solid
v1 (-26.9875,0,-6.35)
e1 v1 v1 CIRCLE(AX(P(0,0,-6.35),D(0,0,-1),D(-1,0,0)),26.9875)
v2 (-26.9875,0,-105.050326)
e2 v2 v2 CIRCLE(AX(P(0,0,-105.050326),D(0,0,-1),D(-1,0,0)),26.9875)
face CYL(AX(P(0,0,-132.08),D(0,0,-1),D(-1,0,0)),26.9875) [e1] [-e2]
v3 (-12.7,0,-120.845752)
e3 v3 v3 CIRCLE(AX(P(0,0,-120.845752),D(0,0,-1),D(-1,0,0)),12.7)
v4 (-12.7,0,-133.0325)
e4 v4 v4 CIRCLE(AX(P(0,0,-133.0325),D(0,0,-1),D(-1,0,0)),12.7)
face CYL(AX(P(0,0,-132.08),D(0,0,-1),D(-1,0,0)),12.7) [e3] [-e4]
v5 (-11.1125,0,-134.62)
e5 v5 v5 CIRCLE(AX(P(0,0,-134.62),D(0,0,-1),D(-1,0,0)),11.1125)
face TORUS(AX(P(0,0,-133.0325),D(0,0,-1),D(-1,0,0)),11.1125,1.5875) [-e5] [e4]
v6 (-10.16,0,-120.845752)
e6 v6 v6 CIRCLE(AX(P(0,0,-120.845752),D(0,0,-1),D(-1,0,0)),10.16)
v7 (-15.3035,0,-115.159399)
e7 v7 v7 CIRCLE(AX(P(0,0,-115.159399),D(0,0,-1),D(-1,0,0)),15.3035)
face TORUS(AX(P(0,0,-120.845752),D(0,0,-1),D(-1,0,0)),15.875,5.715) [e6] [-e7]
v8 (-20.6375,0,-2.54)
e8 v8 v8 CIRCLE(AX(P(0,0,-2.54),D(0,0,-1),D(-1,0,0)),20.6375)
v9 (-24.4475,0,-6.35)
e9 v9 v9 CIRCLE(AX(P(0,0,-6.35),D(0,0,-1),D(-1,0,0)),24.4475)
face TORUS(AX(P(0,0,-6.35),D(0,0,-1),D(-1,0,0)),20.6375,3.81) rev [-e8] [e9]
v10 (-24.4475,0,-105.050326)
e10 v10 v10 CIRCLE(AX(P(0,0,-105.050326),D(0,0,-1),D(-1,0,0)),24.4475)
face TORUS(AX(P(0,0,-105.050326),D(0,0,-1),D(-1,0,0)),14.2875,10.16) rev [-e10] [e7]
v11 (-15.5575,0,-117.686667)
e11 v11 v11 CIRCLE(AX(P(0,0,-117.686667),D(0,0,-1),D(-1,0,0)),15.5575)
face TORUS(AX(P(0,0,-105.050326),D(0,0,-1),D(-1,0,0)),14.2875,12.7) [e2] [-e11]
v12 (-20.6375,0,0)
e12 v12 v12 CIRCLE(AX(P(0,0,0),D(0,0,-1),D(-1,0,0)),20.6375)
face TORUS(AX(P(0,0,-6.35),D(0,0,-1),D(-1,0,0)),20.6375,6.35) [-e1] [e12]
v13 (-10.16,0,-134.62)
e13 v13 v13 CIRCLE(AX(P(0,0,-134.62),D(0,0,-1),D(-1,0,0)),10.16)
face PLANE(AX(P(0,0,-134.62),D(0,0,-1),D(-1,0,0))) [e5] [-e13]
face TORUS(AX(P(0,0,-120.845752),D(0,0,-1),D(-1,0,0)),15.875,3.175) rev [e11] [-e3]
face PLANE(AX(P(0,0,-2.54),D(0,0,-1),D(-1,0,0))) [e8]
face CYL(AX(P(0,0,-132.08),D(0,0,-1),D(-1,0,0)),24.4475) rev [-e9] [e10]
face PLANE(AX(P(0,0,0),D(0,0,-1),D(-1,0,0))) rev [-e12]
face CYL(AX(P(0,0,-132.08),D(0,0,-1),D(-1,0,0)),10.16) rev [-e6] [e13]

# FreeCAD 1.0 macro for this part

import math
import FreeCAD as App
import Part
import Sketcher

V = App.Vector
Q = App.Units.Quantity

doc = App.newDocument("Part")
body = doc.addObject("PartDesign::Body", "Body")

sketch1 = body.newObject("Sketcher::SketchObject", "Sketch")
sketch1.AttachmentSupport = (doc.getObject("XZ_Plane"), [""])
sketch1.MapMode = "FlatFace"
sketch1.addGeometry(Part.LineSegment(V(12.7, -120.845752, 0), V(12.7, -133.0325, 0)), False)
sketch1.addGeometry(Part.ArcOfCircle(Part.Circle(V(11.1125, -133.0325, 0), V(0, 0, 1), 1.5875), math.radians(-90), math.radians(0)), False)
sketch1.addGeometry(Part.LineSegment(V(11.1125, -134.62, 0), V(10.16, -134.62, 0)), False)
sketch1.addGeometry(Part.LineSegment(V(10.16, -134.62, 0), V(10.16, -120.845752, 0)), False)
sketch1.addGeometry(Part.ArcOfCircle(Part.Circle(V(15.875, -120.845752, 0), V(0, 0, 1), 5.715), math.radians(95.73917), math.radians(180)), False)
sketch1.addGeometry(Part.ArcOfCircle(Part.Circle(V(14.2875, -105.050326, 0), V(0, 0, 1), 10.16), math.radians(-84.26083), math.radians(0)), False)
sketch1.addGeometry(Part.LineSegment(V(24.4475, -105.050326, 0), V(24.4475, -6.35, 0)), False)
sketch1.addGeometry(Part.ArcOfCircle(Part.Circle(V(20.6375, -6.35, 0), V(0, 0, 1), 3.81), math.radians(0), math.radians(90)), False)
sketch1.addGeometry(Part.LineSegment(V(20.6375, -2.54, 0), V(0, -2.54, 0)), False)
sketch1.addGeometry(Part.LineSegment(V(0, -2.54, 0), V(0, 0, 0)), False)
sketch1.addGeometry(Part.LineSegment(V(0, 0, 0), V(20.6375, 0, 0)), False)
sketch1.addGeometry(Part.ArcOfCircle(Part.Circle(V(20.6375, -6.35, 0), V(0, 0, 1), 6.35), math.radians(0), math.radians(90)), False)
sketch1.addGeometry(Part.LineSegment(V(26.9875, -6.35, 0), V(26.9875, -105.050326, 0)), False)
sketch1.addGeometry(Part.ArcOfCircle(Part.Circle(V(14.2875, -105.050326, 0), V(0, 0, 1), 12.7), math.radians(-84.26083), math.radians(0)), False)
sketch1.addGeometry(Part.ArcOfCircle(Part.Circle(V(15.875, -120.845752, 0), V(0, 0, 1), 3.175), math.radians(95.73917), math.radians(180)), False)
sketch1.addConstraint(Sketcher.Constraint("Tangent", 0, 2, 1, 2))
sketch1.addConstraint(Sketcher.Constraint("Tangent", 1, 1, 2, 1))
sketch1.addConstraint(Sketcher.Constraint("Coincident", 2, 2, 3, 1))
sketch1.addConstraint(Sketcher.Constraint("Tangent", 3, 2, 4, 2))
sketch1.addConstraint(Sketcher.Constraint("Tangent", 4, 1, 5, 1))
sketch1.addConstraint(Sketcher.Constraint("Tangent", 5, 2, 6, 1))
sketch1.addConstraint(Sketcher.Constraint("Tangent", 6, 2, 7, 1))
sketch1.addConstraint(Sketcher.Constraint("Tangent", 7, 2, 8, 1))
sketch1.addConstraint(Sketcher.Constraint("Coincident", 8, 2, 9, 1))
sketch1.addConstraint(Sketcher.Constraint("Coincident", 9, 2, 10, 1))
sketch1.addConstraint(Sketcher.Constraint("Tangent", 10, 2, 11, 2))
sketch1.addConstraint(Sketcher.Constraint("Tangent", 11, 1, 12, 1))
sketch1.addConstraint(Sketcher.Constraint("Tangent", 12, 2, 13, 2))
sketch1.addConstraint(Sketcher.Constraint("Tangent", 13, 1, 14, 1))
sketch1.addConstraint(Sketcher.Constraint("Tangent", 14, 2, 0, 1))
sketch1.addConstraint(Sketcher.Constraint("Vertical", 0))
sketch1.addConstraint(Sketcher.Constraint("Horizontal", 2))
sketch1.addConstraint(Sketcher.Constraint("Vertical", 3))
sketch1.addConstraint(Sketcher.Constraint("Vertical", 6))
sketch1.addConstraint(Sketcher.Constraint("Horizontal", 8))
sketch1.addConstraint(Sketcher.Constraint("Vertical", 9))
sketch1.addConstraint(Sketcher.Constraint("Horizontal", 10))
sketch1.addConstraint(Sketcher.Constraint("Vertical", 12))
sketch1.addConstraint(Sketcher.Constraint("Coincident", 9, 2, -1, 1))
sketch1.addConstraint(Sketcher.Constraint("Coincident", 11, 3, 7, 3))
sketch1.addConstraint(Sketcher.Constraint("Coincident", 13, 3, 5, 3))
sketch1.addConstraint(Sketcher.Constraint("Coincident", 14, 3, 4, 3))
sketch1.addConstraint(Sketcher.Constraint("Radius", 5, Q("0.4 in")))
sketch1.addConstraint(Sketcher.Constraint("Radius", 13, Q("0.5 in")))
sketch1.addConstraint(Sketcher.Constraint("Radius", 7, Q("0.15 in")))
sketch1.addConstraint(Sketcher.Constraint("Radius", 1, Q("0.0625 in")))
sketch1.addConstraint(Sketcher.Constraint("Radius", 4, Q("0.225 in")))
sketch1.addConstraint(Sketcher.Constraint("DistanceX", -1, 1, 0, 2, Q("0.5 in")))
sketch1.addConstraint(Sketcher.Constraint("DistanceY", 1, 1, -1, 1, Q("5.3 in")))
sketch1.addConstraint(Sketcher.Constraint("DistanceX", 8, 2, 8, 1, Q("0.8125 in")))
sketch1.addConstraint(Sketcher.Constraint("DistanceY", 0, 2, 0, 1, 12.186748))
revolution = body.newObject("PartDesign::Revolution", "Revolution")
revolution.Profile = sketch1
revolution.ReferenceAxis = (sketch1, ["V_Axis"])
revolution.Angle = 360

doc.recompute()
